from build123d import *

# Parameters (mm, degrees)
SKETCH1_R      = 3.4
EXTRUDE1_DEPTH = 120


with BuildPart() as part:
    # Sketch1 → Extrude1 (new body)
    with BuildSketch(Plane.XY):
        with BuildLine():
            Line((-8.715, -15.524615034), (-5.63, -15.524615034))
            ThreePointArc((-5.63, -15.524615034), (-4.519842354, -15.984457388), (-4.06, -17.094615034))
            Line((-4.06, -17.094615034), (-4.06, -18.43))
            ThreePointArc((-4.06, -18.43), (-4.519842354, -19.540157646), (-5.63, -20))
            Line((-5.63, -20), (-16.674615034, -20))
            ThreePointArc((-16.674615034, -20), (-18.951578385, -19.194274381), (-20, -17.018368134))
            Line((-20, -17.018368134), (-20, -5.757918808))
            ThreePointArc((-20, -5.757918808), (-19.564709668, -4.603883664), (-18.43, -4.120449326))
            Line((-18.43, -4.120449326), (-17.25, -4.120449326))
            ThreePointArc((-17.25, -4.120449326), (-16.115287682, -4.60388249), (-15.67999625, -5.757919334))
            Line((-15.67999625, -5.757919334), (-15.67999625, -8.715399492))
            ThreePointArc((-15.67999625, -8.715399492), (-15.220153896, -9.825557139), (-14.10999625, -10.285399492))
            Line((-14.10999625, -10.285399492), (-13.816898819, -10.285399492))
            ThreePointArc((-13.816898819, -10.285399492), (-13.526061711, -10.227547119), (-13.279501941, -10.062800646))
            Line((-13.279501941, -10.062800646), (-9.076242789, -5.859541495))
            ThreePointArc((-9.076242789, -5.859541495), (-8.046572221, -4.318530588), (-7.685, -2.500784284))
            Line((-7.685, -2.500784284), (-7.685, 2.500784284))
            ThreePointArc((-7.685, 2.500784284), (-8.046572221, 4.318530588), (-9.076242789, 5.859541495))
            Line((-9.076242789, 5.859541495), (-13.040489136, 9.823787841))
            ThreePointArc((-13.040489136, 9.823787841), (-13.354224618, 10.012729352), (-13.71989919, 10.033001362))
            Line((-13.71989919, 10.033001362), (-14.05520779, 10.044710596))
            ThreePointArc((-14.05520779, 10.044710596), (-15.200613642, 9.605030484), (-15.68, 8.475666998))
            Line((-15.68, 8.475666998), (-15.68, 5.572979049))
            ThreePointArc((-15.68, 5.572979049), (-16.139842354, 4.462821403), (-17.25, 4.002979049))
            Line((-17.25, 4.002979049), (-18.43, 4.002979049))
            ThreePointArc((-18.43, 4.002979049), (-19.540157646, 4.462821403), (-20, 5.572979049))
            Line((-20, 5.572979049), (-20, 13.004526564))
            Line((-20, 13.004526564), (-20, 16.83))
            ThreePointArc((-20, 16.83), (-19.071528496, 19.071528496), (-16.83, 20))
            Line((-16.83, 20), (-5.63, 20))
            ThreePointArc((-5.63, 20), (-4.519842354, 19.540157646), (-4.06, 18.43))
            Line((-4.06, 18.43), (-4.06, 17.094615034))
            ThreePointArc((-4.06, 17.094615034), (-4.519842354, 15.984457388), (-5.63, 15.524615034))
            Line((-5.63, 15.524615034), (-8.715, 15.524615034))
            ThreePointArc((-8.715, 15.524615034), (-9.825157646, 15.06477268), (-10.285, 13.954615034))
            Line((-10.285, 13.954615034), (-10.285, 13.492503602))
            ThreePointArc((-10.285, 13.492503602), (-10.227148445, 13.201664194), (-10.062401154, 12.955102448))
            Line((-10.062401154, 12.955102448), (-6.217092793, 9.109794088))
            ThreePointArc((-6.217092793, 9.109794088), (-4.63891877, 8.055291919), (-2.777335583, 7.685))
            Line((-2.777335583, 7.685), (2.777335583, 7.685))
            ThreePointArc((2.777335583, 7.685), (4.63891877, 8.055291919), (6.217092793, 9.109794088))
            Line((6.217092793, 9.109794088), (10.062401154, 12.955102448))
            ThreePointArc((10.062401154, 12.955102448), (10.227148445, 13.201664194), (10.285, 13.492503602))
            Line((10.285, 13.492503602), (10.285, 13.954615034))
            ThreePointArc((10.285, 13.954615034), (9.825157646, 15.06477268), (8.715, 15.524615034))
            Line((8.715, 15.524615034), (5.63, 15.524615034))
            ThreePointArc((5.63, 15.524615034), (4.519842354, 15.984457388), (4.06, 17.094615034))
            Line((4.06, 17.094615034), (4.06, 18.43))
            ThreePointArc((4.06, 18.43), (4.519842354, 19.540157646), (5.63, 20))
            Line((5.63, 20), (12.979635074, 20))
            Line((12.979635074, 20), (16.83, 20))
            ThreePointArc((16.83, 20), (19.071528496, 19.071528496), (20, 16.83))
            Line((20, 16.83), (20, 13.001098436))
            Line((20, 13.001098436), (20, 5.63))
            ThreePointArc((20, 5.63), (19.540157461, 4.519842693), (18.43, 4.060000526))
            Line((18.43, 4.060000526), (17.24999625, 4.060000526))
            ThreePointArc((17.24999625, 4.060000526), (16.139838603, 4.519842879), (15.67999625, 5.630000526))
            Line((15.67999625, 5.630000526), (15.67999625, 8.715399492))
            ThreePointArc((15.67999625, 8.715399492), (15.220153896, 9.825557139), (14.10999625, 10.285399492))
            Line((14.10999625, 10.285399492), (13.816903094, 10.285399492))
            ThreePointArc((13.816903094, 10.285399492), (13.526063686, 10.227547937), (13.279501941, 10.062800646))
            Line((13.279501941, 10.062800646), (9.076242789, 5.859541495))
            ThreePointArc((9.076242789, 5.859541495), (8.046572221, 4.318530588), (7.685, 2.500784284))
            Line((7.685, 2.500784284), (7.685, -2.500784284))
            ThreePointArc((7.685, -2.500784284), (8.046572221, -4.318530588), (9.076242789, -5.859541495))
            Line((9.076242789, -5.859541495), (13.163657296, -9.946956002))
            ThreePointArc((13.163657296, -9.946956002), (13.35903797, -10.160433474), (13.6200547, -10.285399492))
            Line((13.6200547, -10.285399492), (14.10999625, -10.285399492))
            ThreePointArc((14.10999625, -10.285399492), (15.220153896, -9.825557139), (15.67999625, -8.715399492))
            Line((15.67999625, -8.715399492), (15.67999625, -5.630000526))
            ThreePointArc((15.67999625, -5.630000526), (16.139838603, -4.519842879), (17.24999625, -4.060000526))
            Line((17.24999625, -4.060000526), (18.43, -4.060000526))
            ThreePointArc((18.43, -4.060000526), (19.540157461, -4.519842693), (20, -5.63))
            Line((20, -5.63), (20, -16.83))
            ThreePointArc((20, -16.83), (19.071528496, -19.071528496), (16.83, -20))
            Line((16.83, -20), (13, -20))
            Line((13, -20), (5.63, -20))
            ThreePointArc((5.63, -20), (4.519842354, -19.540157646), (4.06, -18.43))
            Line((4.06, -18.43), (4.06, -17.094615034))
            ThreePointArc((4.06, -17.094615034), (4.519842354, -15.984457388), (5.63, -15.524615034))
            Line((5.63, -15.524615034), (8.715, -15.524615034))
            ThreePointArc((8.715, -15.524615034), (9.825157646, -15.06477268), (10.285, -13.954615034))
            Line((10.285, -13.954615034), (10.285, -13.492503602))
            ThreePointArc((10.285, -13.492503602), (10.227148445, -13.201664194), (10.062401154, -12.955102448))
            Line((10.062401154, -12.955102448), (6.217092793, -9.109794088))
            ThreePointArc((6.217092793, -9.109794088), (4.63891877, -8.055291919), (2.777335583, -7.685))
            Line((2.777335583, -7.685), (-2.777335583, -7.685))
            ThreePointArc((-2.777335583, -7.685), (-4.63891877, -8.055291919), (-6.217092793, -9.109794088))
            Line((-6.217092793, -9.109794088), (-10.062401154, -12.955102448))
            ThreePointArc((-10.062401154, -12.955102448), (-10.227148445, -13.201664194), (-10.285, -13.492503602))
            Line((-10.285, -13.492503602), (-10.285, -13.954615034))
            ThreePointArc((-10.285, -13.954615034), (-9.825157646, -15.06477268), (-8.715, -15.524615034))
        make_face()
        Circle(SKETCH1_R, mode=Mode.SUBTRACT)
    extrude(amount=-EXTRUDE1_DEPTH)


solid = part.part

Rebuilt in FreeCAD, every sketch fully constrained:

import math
import FreeCAD as App
import Part
import Sketcher
from FreeCAD import Vector
Q = App.Units.Quantity

doc = App.newDocument("Part")
body = doc.addObject("PartDesign::Body", "Body")

# Sketch on XY plane
sketch1 = body.newObject("Sketcher::SketchObject", "Sketch")
sketch1.AttachmentSupport = (doc.getObject("XY_Plane"), [""])
sketch1.MapMode = "FlatFace"
sketch1.addGeometry(Part.LineSegment(Vector(-5.63, -15.52, 0), Vector(-8.71, -15.52, 0)), False)
sketch1.addGeometry(Part.ArcOfCircle(Part.Circle(Vector(-8.71, -13.95, 0), Vector(0, 0, 1), 1.57), math.radians(-180), math.radians(-90)), False)
sketch1.addGeometry(Part.LineSegment(Vector(-10.29, -13.95, 0), Vector(-10.29, -13.49, 0)), False)
sketch1.addGeometry(Part.ArcOfCircle(Part.Circle(Vector(-9.52, -13.49, 0), Vector(0, 0, 1), 0.76), math.radians(135), math.radians(180)), False)
sketch1.addGeometry(Part.LineSegment(Vector(-10.06, -12.96, 0), Vector(-6.22, -9.11, 0)), False)
sketch1.addGeometry(Part.ArcOfCircle(Part.Circle(Vector(-2.78, -12.55, 0), Vector(0, 0, 1), 4.86), math.radians(90), math.radians(135)), False)
sketch1.addGeometry(Part.LineSegment(Vector(-2.78, -7.68, 0), Vector(2.78, -7.68, 0)), False)
sketch1.addGeometry(Part.ArcOfCircle(Part.Circle(Vector(2.78, -12.55, 0), Vector(0, 0, 1), 4.86), math.radians(45), math.radians(90)), False)
sketch1.addGeometry(Part.LineSegment(Vector(6.22, -9.11, 0), Vector(10.06, -12.96, 0)), False)
sketch1.addGeometry(Part.ArcOfCircle(Part.Circle(Vector(9.52, -13.49, 0), Vector(0, 0, 1), 0.76), math.radians(0), math.radians(45)), False)
sketch1.addGeometry(Part.LineSegment(Vector(10.29, -13.49, 0), Vector(10.29, -13.95, 0)), False)
sketch1.addGeometry(Part.ArcOfCircle(Part.Circle(Vector(8.71, -13.95, 0), Vector(0, 0, 1), 1.57), math.radians(-90), math.radians(0)), False)
sketch1.addGeometry(Part.LineSegment(Vector(8.71, -15.52, 0), Vector(5.63, -15.52, 0)), False)
sketch1.addGeometry(Part.ArcOfCircle(Part.Circle(Vector(5.63, -17.09, 0), Vector(0, 0, 1), 1.57), math.radians(90), math.radians(180)), False)
sketch1.addGeometry(Part.LineSegment(Vector(4.06, -17.09, 0), Vector(4.06, -18.43, 0)), False)
sketch1.addGeometry(Part.ArcOfCircle(Part.Circle(Vector(5.63, -18.43, 0), Vector(0, 0, 1), 1.57), math.radians(-180), math.radians(-90)), False)
sketch1.addGeometry(Part.LineSegment(Vector(5.63, -20, 0), Vector(16.83, -20, 0)), False)
sketch1.addGeometry(Part.ArcOfCircle(Part.Circle(Vector(16.83, -16.83, 0), Vector(0, 0, 1), 3.17), math.radians(-90), math.radians(0)), False)
sketch1.addGeometry(Part.LineSegment(Vector(20, -16.83, 0), Vector(20, -5.63, 0)), False)
sketch1.addGeometry(Part.ArcOfCircle(Part.Circle(Vector(18.43, -5.63, 0), Vector(0, 0, 1), 1.57), math.radians(0), math.radians(90)), False)
sketch1.addGeometry(Part.LineSegment(Vector(18.43, -4.06, 0), Vector(17.25, -4.06, 0)), False)
sketch1.addGeometry(Part.ArcOfCircle(Part.Circle(Vector(17.25, -5.63, 0), Vector(0, 0, 1), 1.57), math.radians(90), math.radians(180)), False)
sketch1.addGeometry(Part.LineSegment(Vector(15.68, -5.63, 0), Vector(15.68, -8.72, 0)), False)
sketch1.addGeometry(Part.ArcOfCircle(Part.Circle(Vector(14.11, -8.72, 0), Vector(0, 0, 1), 1.57), math.radians(-90), math.radians(0)), False)
sketch1.addGeometry(Part.LineSegment(Vector(14.11, -10.29, 0), Vector(13.62, -10.29, 0)), False)
sketch1.addGeometry(Part.ArcOfCircle(Part.Circle(Vector(13.81, -9.55, 0), Vector(0, 0, 1), 0.76), math.radians(-149), math.radians(-105)), False)
sketch1.addGeometry(Part.LineSegment(Vector(13.16, -9.95, 0), Vector(9.08, -5.86, 0)), False)
sketch1.addGeometry(Part.ArcOfCircle(Part.Circle(Vector(12.44, -2.5, 0), Vector(0, 0, 1), 4.75), math.radians(-180), math.radians(-135)), False)
sketch1.addGeometry(Part.LineSegment(Vector(7.68, -2.5, 0), Vector(7.68, 2.5, 0)), False)
sketch1.addGeometry(Part.ArcOfCircle(Part.Circle(Vector(12.44, 2.5, 0), Vector(0, 0, 1), 4.75), math.radians(135), math.radians(180)), False)
sketch1.addGeometry(Part.LineSegment(Vector(9.08, 5.86, 0), Vector(13.28, 10.06, 0)), False)
sketch1.addGeometry(Part.ArcOfCircle(Part.Circle(Vector(13.82, 9.53, 0), Vector(0, 0, 1), 0.76), math.radians(90), math.radians(135)), False)
sketch1.addGeometry(Part.LineSegment(Vector(13.82, 10.29, 0), Vector(14.11, 10.29, 0)), False)
sketch1.addGeometry(Part.ArcOfCircle(Part.Circle(Vector(14.11, 8.72, 0), Vector(0, 0, 1), 1.57), math.radians(0), math.radians(90)), False)
sketch1.addGeometry(Part.LineSegment(Vector(15.68, 8.72, 0), Vector(15.68, 5.63, 0)), False)
sketch1.addGeometry(Part.ArcOfCircle(Part.Circle(Vector(17.25, 5.63, 0), Vector(0, 0, 1), 1.57), math.radians(180), math.radians(270)), False)
sketch1.addGeometry(Part.LineSegment(Vector(17.25, 4.06, 0), Vector(18.43, 4.06, 0)), False)
sketch1.addGeometry(Part.ArcOfCircle(Part.Circle(Vector(18.43, 5.63, 0), Vector(0, 0, 1), 1.57), math.radians(-90), math.radians(0)), False)
sketch1.addGeometry(Part.LineSegment(Vector(20, 5.63, 0), Vector(20, 16.83, 0)), False)
sketch1.addGeometry(Part.ArcOfCircle(Part.Circle(Vector(16.83, 16.83, 0), Vector(0, 0, 1), 3.17), math.radians(0), math.radians(90)), False)
sketch1.addGeometry(Part.LineSegment(Vector(16.83, 20, 0), Vector(5.63, 20, 0)), False)
sketch1.addGeometry(Part.ArcOfCircle(Part.Circle(Vector(5.63, 18.43, 0), Vector(0, 0, 1), 1.57), math.radians(90), math.radians(180)), False)
sketch1.addGeometry(Part.LineSegment(Vector(4.06, 18.43, 0), Vector(4.06, 17.09, 0)), False)
sketch1.addGeometry(Part.ArcOfCircle(Part.Circle(Vector(5.63, 17.09, 0), Vector(0, 0, 1), 1.57), math.radians(-180), math.radians(-90)), False)
sketch1.addGeometry(Part.LineSegment(Vector(5.63, 15.52, 0), Vector(8.71, 15.52, 0)), False)
sketch1.addGeometry(Part.ArcOfCircle(Part.Circle(Vector(8.71, 13.95, 0), Vector(0, 0, 1), 1.57), math.radians(0), math.radians(90)), False)
sketch1.addGeometry(Part.LineSegment(Vector(10.29, 13.95, 0), Vector(10.29, 13.49, 0)), False)
sketch1.addGeometry(Part.ArcOfCircle(Part.Circle(Vector(9.52, 13.49, 0), Vector(0, 0, 1), 0.76), math.radians(-45), math.radians(0)), False)
sketch1.addGeometry(Part.LineSegment(Vector(10.06, 12.96, 0), Vector(6.22, 9.11, 0)), False)
sketch1.addGeometry(Part.ArcOfCircle(Part.Circle(Vector(2.78, 12.55, 0), Vector(0, 0, 1), 4.86), math.radians(-90), math.radians(-45)), False)
sketch1.addGeometry(Part.LineSegment(Vector(2.78, 7.68, 0), Vector(-2.78, 7.68, 0)), False)
sketch1.addGeometry(Part.ArcOfCircle(Part.Circle(Vector(-2.78, 12.55, 0), Vector(0, 0, 1), 4.86), math.radians(-135), math.radians(-90)), False)
sketch1.addGeometry(Part.LineSegment(Vector(-6.22, 9.11, 0), Vector(-10.06, 12.96, 0)), False)
sketch1.addGeometry(Part.ArcOfCircle(Part.Circle(Vector(-9.52, 13.49, 0), Vector(0, 0, 1), 0.76), math.radians(180), math.radians(225)), False)
sketch1.addGeometry(Part.LineSegment(Vector(-10.29, 13.49, 0), Vector(-10.29, 13.95, 0)), False)
sketch1.addGeometry(Part.ArcOfCircle(Part.Circle(Vector(-8.71, 13.95, 0), Vector(0, 0, 1), 1.57), math.radians(90), math.radians(180)), False)
sketch1.addGeometry(Part.LineSegment(Vector(-8.71, 15.52, 0), Vector(-5.63, 15.52, 0)), False)
sketch1.addGeometry(Part.ArcOfCircle(Part.Circle(Vector(-5.63, 17.09, 0), Vector(0, 0, 1), 1.57), math.radians(-90), math.radians(0)), False)
sketch1.addGeometry(Part.LineSegment(Vector(-4.06, 17.09, 0), Vector(-4.06, 18.43, 0)), False)
sketch1.addGeometry(Part.ArcOfCircle(Part.Circle(Vector(-5.63, 18.43, 0), Vector(0, 0, 1), 1.57), math.radians(0), math.radians(90)), False)
sketch1.addGeometry(Part.LineSegment(Vector(-5.63, 20, 0), Vector(-16.83, 20, 0)), False)
sketch1.addGeometry(Part.ArcOfCircle(Part.Circle(Vector(-16.83, 16.83, 0), Vector(0, 0, 1), 3.17), math.radians(90), math.radians(180)), False)
sketch1.addGeometry(Part.LineSegment(Vector(-20, 16.83, 0), Vector(-20, 5.57, 0)), False)
sketch1.addGeometry(Part.ArcOfCircle(Part.Circle(Vector(-18.43, 5.57, 0), Vector(0, 0, 1), 1.57), math.radians(-180), math.radians(-90)), False)
sketch1.addGeometry(Part.LineSegment(Vector(-18.43, 4, 0), Vector(-17.25, 4, 0)), False)
sketch1.addGeometry(Part.ArcOfCircle(Part.Circle(Vector(-17.25, 5.57, 0), Vector(0, 0, 1), 1.57), math.radians(-90), math.radians(0)), False)
sketch1.addGeometry(Part.LineSegment(Vector(-15.68, 5.57, 0), Vector(-15.68, 8.48, 0)), False)
sketch1.addGeometry(Part.ArcOfCircle(Part.Circle(Vector(-14.11, 8.48, 0), Vector(0, 0, 1), 1.57), math.radians(88), math.radians(180)), False)
sketch1.addGeometry(Part.LineSegment(Vector(-14.06, 10.04, 0), Vector(-13.72, 10.03, 0)), False)
sketch1.addGeometry(Part.ArcOfCircle(Part.Circle(Vector(-13.58, 9.29, 0), Vector(0, 0, 1), 0.76), math.radians(45), math.radians(101)), False)
sketch1.addGeometry(Part.LineSegment(Vector(-13.04, 9.82, 0), Vector(-9.08, 5.86, 0)), False)
sketch1.addGeometry(Part.ArcOfCircle(Part.Circle(Vector(-12.44, 2.5, 0), Vector(0, 0, 1), 4.75), math.radians(0), math.radians(45)), False)
sketch1.addGeometry(Part.LineSegment(Vector(-7.68, 2.5, 0), Vector(-7.68, -2.5, 0)), False)
sketch1.addGeometry(Part.ArcOfCircle(Part.Circle(Vector(-12.44, -2.5, 0), Vector(0, 0, 1), 4.75), math.radians(-45), math.radians(0)), False)
sketch1.addGeometry(Part.LineSegment(Vector(-9.08, -5.86, 0), Vector(-13.28, -10.06, 0)), False)
sketch1.addGeometry(Part.ArcOfCircle(Part.Circle(Vector(-13.82, -9.53, 0), Vector(0, 0, 1), 0.76), math.radians(-90), math.radians(-45)), False)
sketch1.addGeometry(Part.LineSegment(Vector(-13.82, -10.29, 0), Vector(-14.11, -10.29, 0)), False)
sketch1.addGeometry(Part.ArcOfCircle(Part.Circle(Vector(-14.11, -8.72, 0), Vector(0, 0, 1), 1.57), math.radians(180), math.radians(270)), False)
sketch1.addGeometry(Part.LineSegment(Vector(-15.68, -8.72, 0), Vector(-15.68, -5.76, 0)), False)
sketch1.addGeometry(Part.ArcOfCircle(Part.Circle(Vector(-17.25, -5.69, 0), Vector(0, 0, 1), 1.57), math.radians(-2), math.radians(90)), False)
sketch1.addGeometry(Part.LineSegment(Vector(-17.25, -4.12, 0), Vector(-18.43, -4.12, 0)), False)
sketch1.addGeometry(Part.ArcOfCircle(Part.Circle(Vector(-18.43, -5.69, 0), Vector(0, 0, 1), 1.57), math.radians(90), math.radians(182)), False)
sketch1.addGeometry(Part.LineSegment(Vector(-20, -5.76, 0), Vector(-20, -17.02, 0)), False)
sketch1.addGeometry(Part.ArcOfCircle(Part.Circle(Vector(-16.84, -16.83, 0), Vector(0, 0, 1), 3.17), math.radians(-177), math.radians(-87)), False)
sketch1.addGeometry(Part.LineSegment(Vector(-16.67, -20, 0), Vector(-5.63, -20, 0)), False)
sketch1.addGeometry(Part.ArcOfCircle(Part.Circle(Vector(-5.63, -18.43, 0), Vector(0, 0, 1), 1.57), math.radians(-90), math.radians(0)), False)
sketch1.addGeometry(Part.LineSegment(Vector(-4.06, -18.43, 0), Vector(-4.06, -17.09, 0)), False)
sketch1.addGeometry(Part.ArcOfCircle(Part.Circle(Vector(-5.63, -17.09, 0), Vector(0, 0, 1), 1.57), math.radians(0), math.radians(90)), False)
sketch1.addGeometry(Part.Circle(Vector(0, 0, 0), Vector(0, 0, 1), 3.4), False)
sketch1.addConstraint(Sketcher.Constraint("Tangent", 0, 2, 1, 2))
sketch1.addConstraint(Sketcher.Constraint("Tangent", 1, 1, 2, 1))
sketch1.addConstraint(Sketcher.Constraint("Tangent", 2, 2, 3, 2))
sketch1.addConstraint(Sketcher.Constraint("Tangent", 3, 1, 4, 1))
sketch1.addConstraint(Sketcher.Constraint("Tangent", 4, 2, 5, 2))
sketch1.addConstraint(Sketcher.Constraint("Tangent", 5, 1, 6, 1))
sketch1.addConstraint(Sketcher.Constraint("Tangent", 6, 2, 7, 2))
sketch1.addConstraint(Sketcher.Constraint("Tangent", 7, 1, 8, 1))
sketch1.addConstraint(Sketcher.Constraint("Tangent", 8, 2, 9, 2))
sketch1.addConstraint(Sketcher.Constraint("Tangent", 9, 1, 10, 1))
sketch1.addConstraint(Sketcher.Constraint("Tangent", 10, 2, 11, 2))
sketch1.addConstraint(Sketcher.Constraint("Tangent", 11, 1, 12, 1))
sketch1.addConstraint(Sketcher.Constraint("Tangent", 12, 2, 13, 1))
sketch1.addConstraint(Sketcher.Constraint("Tangent", 13, 2, 14, 1))
sketch1.addConstraint(Sketcher.Constraint("Tangent", 14, 2, 15, 1))
sketch1.addConstraint(Sketcher.Constraint("Tangent", 15, 2, 16, 1))
sketch1.addConstraint(Sketcher.Constraint("Tangent", 16, 2, 17, 1))
sketch1.addConstraint(Sketcher.Constraint("Tangent", 17, 2, 18, 1))
sketch1.addConstraint(Sketcher.Constraint("Tangent", 18, 2, 19, 1))
sketch1.addConstraint(Sketcher.Constraint("Tangent", 19, 2, 20, 1))
sketch1.addConstraint(Sketcher.Constraint("Tangent", 20, 2, 21, 1))
sketch1.addConstraint(Sketcher.Constraint("Tangent", 21, 2, 22, 1))
sketch1.addConstraint(Sketcher.Constraint("Tangent", 22, 2, 23, 2))
sketch1.addConstraint(Sketcher.Constraint("Tangent", 23, 1, 24, 1))
sketch1.addConstraint(Sketcher.Constraint("Coincident", 24, 2, 25, 2))
sketch1.addConstraint(Sketcher.Constraint("Coincident", 25, 1, 26, 1))
sketch1.addConstraint(Sketcher.Constraint("Tangent", 26, 2, 27, 2))
sketch1.addConstraint(Sketcher.Constraint("Tangent", 27, 1, 28, 1))
sketch1.addConstraint(Sketcher.Constraint("Tangent", 28, 2, 29, 2))
sketch1.addConstraint(Sketcher.Constraint("Tangent", 29, 1, 30, 1))
sketch1.addConstraint(Sketcher.Constraint("Tangent", 30, 2, 31, 2))
sketch1.addConstraint(Sketcher.Constraint("Tangent", 31, 1, 32, 1))
sketch1.addConstraint(Sketcher.Constraint("Tangent", 32, 2, 33, 2))
sketch1.addConstraint(Sketcher.Constraint("Tangent", 33, 1, 34, 1))
sketch1.addConstraint(Sketcher.Constraint("Tangent", 34, 2, 35, 1))
sketch1.addConstraint(Sketcher.Constraint("Tangent", 35, 2, 36, 1))
sketch1.addConstraint(Sketcher.Constraint("Tangent", 36, 2, 37, 1))
sketch1.addConstraint(Sketcher.Constraint("Tangent", 37, 2, 38, 1))
sketch1.addConstraint(Sketcher.Constraint("Tangent", 38, 2, 39, 1))
sketch1.addConstraint(Sketcher.Constraint("Tangent", 39, 2, 40, 1))
sketch1.addConstraint(Sketcher.Constraint("Tangent", 40, 2, 41, 1))
sketch1.addConstraint(Sketcher.Constraint("Tangent", 41, 2, 42, 1))
sketch1.addConstraint(Sketcher.Constraint("Tangent", 42, 2, 43, 1))
sketch1.addConstraint(Sketcher.Constraint("Tangent", 43, 2, 44, 1))
sketch1.addConstraint(Sketcher.Constraint("Tangent", 44, 2, 45, 2))
sketch1.addConstraint(Sketcher.Constraint("Tangent", 45, 1, 46, 1))
sketch1.addConstraint(Sketcher.Constraint("Tangent", 46, 2, 47, 2))
sketch1.addConstraint(Sketcher.Constraint("Tangent", 47, 1, 48, 1))
sketch1.addConstraint(Sketcher.Constraint("Tangent", 48, 2, 49, 2))
sketch1.addConstraint(Sketcher.Constraint("Tangent", 49, 1, 50, 1))
sketch1.addConstraint(Sketcher.Constraint("Tangent", 50, 2, 51, 2))
sketch1.addConstraint(Sketcher.Constraint("Tangent", 51, 1, 52, 1))
sketch1.addConstraint(Sketcher.Constraint("Tangent", 52, 2, 53, 2))
sketch1.addConstraint(Sketcher.Constraint("Tangent", 53, 1, 54, 1))
sketch1.addConstraint(Sketcher.Constraint("Tangent", 54, 2, 55, 2))
sketch1.addConstraint(Sketcher.Constraint("Tangent", 55, 1, 56, 1))
sketch1.addConstraint(Sketcher.Constraint("Tangent", 56, 2, 57, 1))
sketch1.addConstraint(Sketcher.Constraint("Tangent", 57, 2, 58, 1))
sketch1.addConstraint(Sketcher.Constraint("Tangent", 58, 2, 59, 1))
sketch1.addConstraint(Sketcher.Constraint("Tangent", 59, 2, 60, 1))
sketch1.addConstraint(Sketcher.Constraint("Tangent", 60, 2, 61, 1))
sketch1.addConstraint(Sketcher.Constraint("Tangent", 61, 2, 62, 1))
sketch1.addConstraint(Sketcher.Constraint("Tangent", 62, 2, 63, 1))
sketch1.addConstraint(Sketcher.Constraint("Tangent", 63, 2, 64, 1))
sketch1.addConstraint(Sketcher.Constraint("Tangent", 64, 2, 65, 1))
sketch1.addConstraint(Sketcher.Constraint("Tangent", 65, 2, 66, 1))
sketch1.addConstraint(Sketcher.Constraint("Tangent", 66, 2, 67, 2))
sketch1.addConstraint(Sketcher.Constraint("Tangent", 67, 1, 68, 1))
sketch1.addConstraint(Sketcher.Constraint("Coincident", 68, 2, 69, 2))
sketch1.addConstraint(Sketcher.Constraint("Tangent", 69, 1, 70, 1))
sketch1.addConstraint(Sketcher.Constraint("Tangent", 70, 2, 71, 2))
sketch1.addConstraint(Sketcher.Constraint("Tangent", 71, 1, 72, 1))
sketch1.addConstraint(Sketcher.Constraint("Tangent", 72, 2, 73, 2))
sketch1.addConstraint(Sketcher.Constraint("Tangent", 73, 1, 74, 1))
sketch1.addConstraint(Sketcher.Constraint("Tangent", 74, 2, 75, 2))
sketch1.addConstraint(Sketcher.Constraint("Coincident", 75, 1, 76, 1))
sketch1.addConstraint(Sketcher.Constraint("Tangent", 76, 2, 77, 2))
sketch1.addConstraint(Sketcher.Constraint("Tangent", 77, 1, 78, 1))
sketch1.addConstraint(Sketcher.Constraint("Coincident", 78, 2, 79, 1))
sketch1.addConstraint(Sketcher.Constraint("Coincident", 79, 2, 80, 1))
sketch1.addConstraint(Sketcher.Constraint("Coincident", 80, 2, 81, 1))
sketch1.addConstraint(Sketcher.Constraint("Coincident", 81, 2, 82, 1))
sketch1.addConstraint(Sketcher.Constraint("Coincident", 82, 2, 83, 1))
sketch1.addConstraint(Sketcher.Constraint("Coincident", 83, 2, 84, 1))
sketch1.addConstraint(Sketcher.Constraint("Tangent", 84, 2, 85, 1))
sketch1.addConstraint(Sketcher.Constraint("Tangent", 85, 2, 86, 1))
sketch1.addConstraint(Sketcher.Constraint("Tangent", 86, 2, 87, 1))
sketch1.addConstraint(Sketcher.Constraint("Tangent", 87, 2, 0, 1))
sketch1.addConstraint(Sketcher.Constraint("Horizontal", 0))
sketch1.addConstraint(Sketcher.Constraint("Vertical", 2))
sketch1.addConstraint(Sketcher.Constraint("Horizontal", 6))
sketch1.addConstraint(Sketcher.Constraint("Vertical", 10))
sketch1.addConstraint(Sketcher.Constraint("Horizontal", 12))
sketch1.addConstraint(Sketcher.Constraint("Vertical", 14))
sketch1.addConstraint(Sketcher.Constraint("Horizontal", 16))
sketch1.addConstraint(Sketcher.Constraint("Vertical", 18))
sketch1.addConstraint(Sketcher.Constraint("Horizontal", 20))
sketch1.addConstraint(Sketcher.Constraint("Vertical", 22))
sketch1.addConstraint(Sketcher.Constraint("Horizontal", 24))
sketch1.addConstraint(Sketcher.Constraint("Vertical", 28))
sketch1.addConstraint(Sketcher.Constraint("Horizontal", 32))
sketch1.addConstraint(Sketcher.Constraint("Vertical", 34))
sketch1.addConstraint(Sketcher.Constraint("Horizontal", 36))
sketch1.addConstraint(Sketcher.Constraint("Vertical", 38))
sketch1.addConstraint(Sketcher.Constraint("Horizontal", 40))
sketch1.addConstraint(Sketcher.Constraint("Vertical", 42))
sketch1.addConstraint(Sketcher.Constraint("Horizontal", 44))
sketch1.addConstraint(Sketcher.Constraint("Vertical", 46))
sketch1.addConstraint(Sketcher.Constraint("Horizontal", 50))
sketch1.addConstraint(Sketcher.Constraint("Vertical", 54))
sketch1.addConstraint(Sketcher.Constraint("Horizontal", 56))
sketch1.addConstraint(Sketcher.Constraint("Vertical", 58))
sketch1.addConstraint(Sketcher.Constraint("Horizontal", 60))
sketch1.addConstraint(Sketcher.Constraint("Vertical", 62))
sketch1.addConstraint(Sketcher.Constraint("Horizontal", 64))
sketch1.addConstraint(Sketcher.Constraint("Vertical", 66))
sketch1.addConstraint(Sketcher.Constraint("Vertical", 72))
sketch1.addConstraint(Sketcher.Constraint("Horizontal", 76))
sketch1.addConstraint(Sketcher.Constraint("Vertical", 78))
sketch1.addConstraint(Sketcher.Constraint("Horizontal", 80))
sketch1.addConstraint(Sketcher.Constraint("Vertical", 82))
sketch1.addConstraint(Sketcher.Constraint("Horizontal", 84))
sketch1.addConstraint(Sketcher.Constraint("Vertical", 86))
sketch1.addConstraint(Sketcher.Constraint("Coincident", 88, 3, -1, 1))
sketch1.addConstraint(Sketcher.Constraint("Equal", 5, 7))
sketch1.addConstraint(Sketcher.Constraint("Equal", 3, 9))
sketch1.addConstraint(Sketcher.Constraint("Equal", 1, 11))
sketch1.addConstraint(Sketcher.Constraint("Equal", 11, 13))
sketch1.addConstraint(Sketcher.Constraint("Equal", 13, 15))
sketch1.addConstraint(Sketcher.Constraint("Equal", 15, 19))
sketch1.addConstraint(Sketcher.Constraint("Equal", 19, 21))
sketch1.addConstraint(Sketcher.Constraint("Equal", 21, 23))
sketch1.addConstraint(Sketcher.Constraint("Equal", 9, 25))
sketch1.addConstraint(Sketcher.Constraint("Equal", 27, 29))
sketch1.addConstraint(Sketcher.Constraint("Equal", 25, 31))
sketch1.addConstraint(Sketcher.Constraint("Equal", 23, 33))
sketch1.addConstraint(Sketcher.Constraint("Equal", 33, 35))
sketch1.addConstraint(Sketcher.Constraint("Equal", 35, 37))
sketch1.addConstraint(Sketcher.Constraint("Equal", 17, 39))
sketch1.addConstraint(Sketcher.Constraint("Equal", 37, 41))
sketch1.addConstraint(Sketcher.Constraint("Equal", 41, 43))
sketch1.addConstraint(Sketcher.Constraint("Equal", 43, 45))
sketch1.addConstraint(Sketcher.Constraint("Equal", 31, 47))
sketch1.addConstraint(Sketcher.Constraint("Equal", 7, 49))
sketch1.addConstraint(Sketcher.Constraint("Equal", 49, 51))
sketch1.addConstraint(Sketcher.Constraint("Equal", 47, 53))
sketch1.addConstraint(Sketcher.Constraint("Equal", 45, 55))
sketch1.addConstraint(Sketcher.Constraint("Equal", 55, 57))
sketch1.addConstraint(Sketcher.Constraint("Equal", 57, 59))
sketch1.addConstraint(Sketcher.Constraint("Equal", 39, 61))
sketch1.addConstraint(Sketcher.Constraint("Equal", 59, 63))
sketch1.addConstraint(Sketcher.Constraint("Equal", 63, 65))
sketch1.addConstraint(Sketcher.Constraint("Equal", 65, 67))
sketch1.addConstraint(Sketcher.Constraint("Equal", 53, 69))
sketch1.addConstraint(Sketcher.Constraint("Equal", 29, 71))
sketch1.addConstraint(Sketcher.Constraint("Equal", 71, 73))
sketch1.addConstraint(Sketcher.Constraint("Equal", 69, 75))
sketch1.addConstraint(Sketcher.Constraint("Equal", 67, 77))
sketch1.addConstraint(Sketcher.Constraint("Equal", 77, 79))
sketch1.addConstraint(Sketcher.Constraint("Equal", 79, 81))
sketch1.addConstraint(Sketcher.Constraint("Equal", 61, 83))
sketch1.addConstraint(Sketcher.Constraint("Equal", 81, 85))
sketch1.addConstraint(Sketcher.Constraint("Equal", 85, 87))
sketch1.addConstraint(Sketcher.Constraint("Symmetric", 1, 3, 45, 3, -1, 1))
sketch1.addConstraint(Sketcher.Constraint("Symmetric", 5, 3, 49, 3, -1, 1))
sketch1.addConstraint(Sketcher.Constraint("Symmetric", 9, 3, 53, 3, -1, 1))
sketch1.addConstraint(Sketcher.Constraint("Symmetric", 13, 3, 57, 3, -1, 1))
sketch1.addConstraint(Sketcher.Constraint("Symmetric", 17, 3, 61, 3, -1, 1))
sketch1.addConstraint(Sketcher.Constraint("Symmetric", 27, 3, 71, 3, -1, 1))
sketch1.addConstraint(Sketcher.Constraint("Symmetric", 31, 3, 75, 3, -1, 1))
sketch1.addConstraint(Sketcher.Constraint("Symmetric", 41, 3, 85, 3, -1, 1))
sketch1.addConstraint(Sketcher.Constraint("Symmetric", 3, 3, 9, 3, -2))
sketch1.addConstraint(Sketcher.Constraint("Symmetric", 43, 3, 57, 3, -2))
sketch1.addConstraint(Sketcher.Constraint("Symmetric", 39, 3, 61, 3, -2))
sketch1.addConstraint(Sketcher.Constraint("Symmetric", 23, 3, 77, 3, -2))
sketch1.addConstraint(Sketcher.Constraint("Symmetric", 48, 2, 51, 1, -2))
sketch1.addConstraint(Sketcher.Constraint("Symmetric", 29, 1, 70, 2, -2))
sketch1.addConstraint(Sketcher.Constraint("Symmetric", 26, 2, 73, 1, -2))
sketch1.addConstraint(Sketcher.Constraint("Symmetric", 21, 3, 35, 3, -1))
sketch1.addConstraint(Sketcher.Constraint("Perpendicular", 4, 8))
sketch1.addConstraint(Sketcher.Constraint("Parallel", 8, 26))
sketch1.addConstraint(Sketcher.Constraint("Perpendicular", 26, 30))
sketch1.addConstraint(Sketcher.Constraint("Horizontal", 78, 2, 81, 2))
sketch1.addConstraint(Sketcher.Constraint("Vertical", 64, 2, 79, 2))
sketch1.addConstraint(Sketcher.Constraint("Vertical", 63, 2, 80, 2))
sketch1.addConstraint(Sketcher.Constraint("Vertical", 62, 2, 81, 2))
sketch1.addConstraint(Sketcher.Constraint("Equal", 60, 18))
sketch1.addConstraint(Sketcher.Constraint("Diameter", 88, 6.8))
sketch1.addConstraint(Sketcher.Constraint("Angle", 68, Q("-2 deg")))
sketch1.addConstraint(Sketcher.Constraint("Radius", 1, 1.57))
sketch1.addConstraint(Sketcher.Constraint("Radius", 3, 0.76))
sketch1.addConstraint(Sketcher.Constraint("Radius", 17, 3.17))
sketch1.addConstraint(Sketcher.Constraint("Radius", 27, 4.75))
sketch1.addConstraint(Sketcher.Constraint("DistanceX", 16, 1, 16, 2, 11.2))
sketch1.addConstraint(Sketcher.Constraint("DistanceY", 15, 2, -1, 1, 20.0))
sketch1.addConstraint(Sketcher.Constraint("DistanceX", -1, 1, 17, 2, 20.0))
sketch1.addConstraint(Sketcher.Constraint("DistanceX", 64, 1, 64, 2, 1.18))
sketch1.addConstraint(Sketcher.Constraint("DistanceX", 0, 2, 0, 1, 3.085))
sketch1.addConstraint(Sketcher.Constraint("Radius", 5, 4.864551))
sketch1.addConstraint(Sketcher.Constraint("DistanceY", 22, 2, 22, 1, 3.085399))
sketch1.addConstraint(Sketcher.Constraint("DistanceX", -1, 1, 27, 3, 12.435))
sketch1.addConstraint(Sketcher.Constraint("DistanceY", 5, 1, -1, 1, 7.685))
sketch1.addConstraint(Sketcher.Constraint("DistanceY", -1, 1, 68, 2, 10.033001))
sketch1.addConstraint(Sketcher.Constraint("DistanceX", 6, 1, 6, 2, 5.554671))
sketch1.addConstraint(Sketcher.Constraint("DistanceX", 24, 2, 24, 1, 0.489942))
sketch1.addConstraint(Sketcher.Constraint("DistanceY", 2, 1, 2, 2, 0.462111))
sketch1.addConstraint(Sketcher.Constraint("DistanceY", 28, 1, 28, 2, 5.001569))
sketch1.addConstraint(Sketcher.Constraint("DistanceY", 62, 2, 62, 1, 11.257021))
sketch1.addConstraint(Sketcher.Constraint("DistanceY", 78, 1, 78, 2, 2.95748))
sketch1.addConstraint(Sketcher.Constraint("DistanceY", 82, 2, 82, 1, 11.260449))
sketch1.addConstraint(Sketcher.Constraint("DistanceX", 68, 2, -1, 1, 13.719899))
sketch1.addConstraint(Sketcher.Constraint("DistanceX", 75, 1, -1, 1, 13.816899))
sketch1.addConstraint(Sketcher.Constraint("DistanceX", 20, 2, 20, 1, 1.180004))
sketch1.addConstraint(Sketcher.Constraint("DistanceX", 84, 1, 84, 2, 11.044615))
sketch1.addConstraint(Sketcher.Constraint("DistanceX", -1, 1, 25, 3, 13.811732))
sketch1.addConstraint(Sketcher.Constraint("DistanceY", 79, 3, -1, 1, 5.690449))
pad1 = body.newObject("PartDesign::Pad", "Pad")
pad1.Profile = sketch1
pad1.Length = 120
pad1.Reversed = True

doc.recompute()
